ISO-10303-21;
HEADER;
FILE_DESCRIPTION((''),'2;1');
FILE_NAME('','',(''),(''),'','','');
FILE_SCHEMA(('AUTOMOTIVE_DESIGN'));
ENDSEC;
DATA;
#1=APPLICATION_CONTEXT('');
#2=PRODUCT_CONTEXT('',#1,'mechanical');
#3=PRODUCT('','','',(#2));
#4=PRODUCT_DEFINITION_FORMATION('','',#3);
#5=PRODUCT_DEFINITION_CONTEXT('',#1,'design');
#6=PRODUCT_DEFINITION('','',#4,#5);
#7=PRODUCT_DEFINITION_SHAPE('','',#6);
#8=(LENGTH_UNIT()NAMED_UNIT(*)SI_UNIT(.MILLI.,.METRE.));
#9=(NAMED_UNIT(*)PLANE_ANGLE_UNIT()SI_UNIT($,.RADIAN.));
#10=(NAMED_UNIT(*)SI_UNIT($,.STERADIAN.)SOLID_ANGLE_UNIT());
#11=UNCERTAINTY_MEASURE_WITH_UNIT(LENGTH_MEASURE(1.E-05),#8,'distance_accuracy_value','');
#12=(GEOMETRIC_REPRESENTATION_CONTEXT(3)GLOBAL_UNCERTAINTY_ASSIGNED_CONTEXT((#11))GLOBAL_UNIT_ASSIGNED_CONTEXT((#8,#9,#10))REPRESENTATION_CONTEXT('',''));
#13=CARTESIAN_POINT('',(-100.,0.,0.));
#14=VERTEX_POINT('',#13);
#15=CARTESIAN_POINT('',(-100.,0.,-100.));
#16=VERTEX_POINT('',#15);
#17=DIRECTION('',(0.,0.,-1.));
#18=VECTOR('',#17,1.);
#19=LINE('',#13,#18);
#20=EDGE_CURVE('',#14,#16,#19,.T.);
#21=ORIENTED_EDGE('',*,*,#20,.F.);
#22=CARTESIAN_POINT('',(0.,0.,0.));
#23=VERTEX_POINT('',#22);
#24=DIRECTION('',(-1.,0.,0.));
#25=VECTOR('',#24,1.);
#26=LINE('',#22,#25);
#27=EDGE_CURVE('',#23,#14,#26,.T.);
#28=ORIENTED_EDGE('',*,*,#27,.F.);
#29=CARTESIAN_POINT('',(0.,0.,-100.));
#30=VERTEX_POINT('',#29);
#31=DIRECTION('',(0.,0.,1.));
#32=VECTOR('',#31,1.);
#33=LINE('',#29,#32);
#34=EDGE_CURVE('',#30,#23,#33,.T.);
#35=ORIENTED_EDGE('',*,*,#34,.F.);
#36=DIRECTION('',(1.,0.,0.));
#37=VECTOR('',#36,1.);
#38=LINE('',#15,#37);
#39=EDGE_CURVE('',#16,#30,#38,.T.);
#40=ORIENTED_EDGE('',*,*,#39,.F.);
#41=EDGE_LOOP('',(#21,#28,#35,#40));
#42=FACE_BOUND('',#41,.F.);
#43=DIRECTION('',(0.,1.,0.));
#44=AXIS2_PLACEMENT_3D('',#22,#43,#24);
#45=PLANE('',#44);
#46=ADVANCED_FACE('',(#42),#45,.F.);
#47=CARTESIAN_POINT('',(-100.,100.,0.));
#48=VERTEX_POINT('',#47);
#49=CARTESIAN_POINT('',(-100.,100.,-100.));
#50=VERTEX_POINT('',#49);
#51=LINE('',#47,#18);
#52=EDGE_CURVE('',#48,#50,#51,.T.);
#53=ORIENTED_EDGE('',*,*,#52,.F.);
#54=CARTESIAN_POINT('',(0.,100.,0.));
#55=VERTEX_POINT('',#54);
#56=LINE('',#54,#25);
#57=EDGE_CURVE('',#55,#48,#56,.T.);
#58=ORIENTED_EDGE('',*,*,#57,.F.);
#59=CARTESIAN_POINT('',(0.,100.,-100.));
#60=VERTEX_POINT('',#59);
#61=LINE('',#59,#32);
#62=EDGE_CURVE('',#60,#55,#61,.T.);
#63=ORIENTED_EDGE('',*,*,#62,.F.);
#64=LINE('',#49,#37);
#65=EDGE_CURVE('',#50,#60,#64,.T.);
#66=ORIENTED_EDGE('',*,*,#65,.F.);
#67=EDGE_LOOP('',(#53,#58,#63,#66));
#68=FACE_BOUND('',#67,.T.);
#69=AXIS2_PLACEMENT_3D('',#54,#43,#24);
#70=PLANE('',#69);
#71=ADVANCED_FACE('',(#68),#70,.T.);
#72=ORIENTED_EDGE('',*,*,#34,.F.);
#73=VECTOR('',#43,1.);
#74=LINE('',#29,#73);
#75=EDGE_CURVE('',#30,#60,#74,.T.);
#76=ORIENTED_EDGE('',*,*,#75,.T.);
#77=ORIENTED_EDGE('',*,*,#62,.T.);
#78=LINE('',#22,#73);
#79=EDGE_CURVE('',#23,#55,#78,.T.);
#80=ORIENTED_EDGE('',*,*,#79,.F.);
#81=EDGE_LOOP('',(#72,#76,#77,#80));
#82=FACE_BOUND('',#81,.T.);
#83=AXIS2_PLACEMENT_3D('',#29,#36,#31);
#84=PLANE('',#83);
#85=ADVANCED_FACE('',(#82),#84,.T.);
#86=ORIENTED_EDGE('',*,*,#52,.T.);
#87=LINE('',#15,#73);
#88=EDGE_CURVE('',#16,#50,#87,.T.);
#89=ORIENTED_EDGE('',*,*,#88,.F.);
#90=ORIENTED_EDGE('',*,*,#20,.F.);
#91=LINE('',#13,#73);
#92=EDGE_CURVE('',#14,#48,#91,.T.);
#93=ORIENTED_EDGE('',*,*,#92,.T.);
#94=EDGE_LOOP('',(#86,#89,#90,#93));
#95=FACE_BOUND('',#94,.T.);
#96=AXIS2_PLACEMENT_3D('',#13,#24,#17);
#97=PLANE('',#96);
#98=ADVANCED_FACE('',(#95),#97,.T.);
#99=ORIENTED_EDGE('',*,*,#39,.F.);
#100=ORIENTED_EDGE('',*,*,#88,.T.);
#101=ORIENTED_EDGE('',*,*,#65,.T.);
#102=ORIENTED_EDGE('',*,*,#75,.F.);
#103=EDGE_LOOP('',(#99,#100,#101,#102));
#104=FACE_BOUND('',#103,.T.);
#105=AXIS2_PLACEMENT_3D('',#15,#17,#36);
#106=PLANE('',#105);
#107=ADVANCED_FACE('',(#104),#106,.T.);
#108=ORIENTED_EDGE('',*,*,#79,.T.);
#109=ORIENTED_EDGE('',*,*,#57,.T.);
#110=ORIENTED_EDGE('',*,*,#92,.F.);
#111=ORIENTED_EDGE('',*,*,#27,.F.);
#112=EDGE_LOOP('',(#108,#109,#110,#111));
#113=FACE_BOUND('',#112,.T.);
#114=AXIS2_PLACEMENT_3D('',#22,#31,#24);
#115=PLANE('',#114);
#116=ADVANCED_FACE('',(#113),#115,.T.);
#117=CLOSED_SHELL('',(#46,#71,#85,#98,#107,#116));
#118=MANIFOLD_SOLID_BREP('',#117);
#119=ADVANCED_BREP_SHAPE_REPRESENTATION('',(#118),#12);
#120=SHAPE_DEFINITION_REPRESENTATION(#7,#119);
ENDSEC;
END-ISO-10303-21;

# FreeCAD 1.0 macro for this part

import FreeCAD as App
import Part
import Sketcher
Q = App.Units.Quantity

doc = App.newDocument("Part")
params = doc.addObject("Spreadsheet::Sheet", "Params")
for row, (alias, value) in enumerate([
    ("sketch1_width", "3.937 in"),
    ("pad1_length", "3.9370079 in"),
], start=1):
    params.set(f"A{row}", alias)
    params.set(f"B{row}", "=" + value)
    params.setAlias(f"B{row}", alias)

body = doc.addObject("PartDesign::Body", "Body")

sketch1 = body.newObject("Sketcher::SketchObject", "Sketch")
sketch1.AttachmentSupport = (doc.getObject("XZ_Plane"), [""])
sketch1.MapMode = "FlatFace"
sketch1.addGeometry([
    Part.LineSegment(App.Vector(-100, 0, 0), App.Vector(0, 0, 0)),
    Part.LineSegment(App.Vector(0, 0, 0), App.Vector(0, -100, 0)),
    Part.LineSegment(App.Vector(0, -100, 0), App.Vector(-100, -100, 0)),
    Part.LineSegment(App.Vector(-100, -100, 0), App.Vector(-100, 0, 0)),
], False)
sketch1.addConstraint([
    Sketcher.Constraint("Coincident", 0, 2, 1, 1),
    Sketcher.Constraint("Coincident", 1, 2, 2, 1),
    Sketcher.Constraint("Coincident", 2, 2, 3, 1),
    Sketcher.Constraint("Coincident", 3, 2, 0, 1),
    Sketcher.Constraint("Horizontal", 0),
    Sketcher.Constraint("Vertical", 1),
    Sketcher.Constraint("Horizontal", 2),
    Sketcher.Constraint("Vertical", 3),
    Sketcher.Constraint("Coincident", 0, 2, -1, 1),
    Sketcher.Constraint("Equal", 2, 1),
    Sketcher.Constraint("DistanceX", 0, 1, 0, 2, Q("3.937 in")),
])
sketch1.setExpression("Constraints[10]", "Params.sketch1_width")
pad1 = body.newObject("PartDesign::Pad", "Pad")
pad1.Profile = sketch1
pad1.setExpression("Length", "Params.pad1_length")
pad1.Reversed = True

doc.recompute()
